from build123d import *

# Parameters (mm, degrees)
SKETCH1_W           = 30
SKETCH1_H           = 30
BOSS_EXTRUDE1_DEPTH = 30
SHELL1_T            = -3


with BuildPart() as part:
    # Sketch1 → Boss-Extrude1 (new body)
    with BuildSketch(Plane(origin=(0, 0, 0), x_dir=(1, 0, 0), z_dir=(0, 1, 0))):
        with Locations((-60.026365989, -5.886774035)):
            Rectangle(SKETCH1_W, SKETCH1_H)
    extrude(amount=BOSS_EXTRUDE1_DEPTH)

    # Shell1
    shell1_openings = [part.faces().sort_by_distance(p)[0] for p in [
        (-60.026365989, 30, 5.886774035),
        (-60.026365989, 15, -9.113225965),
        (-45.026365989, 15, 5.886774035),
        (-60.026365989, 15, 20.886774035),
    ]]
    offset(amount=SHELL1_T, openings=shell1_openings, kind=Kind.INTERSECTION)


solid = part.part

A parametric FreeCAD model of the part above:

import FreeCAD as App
import Part
import Sketcher
from FreeCAD import Vector


def faces_at(feature, points):
    """Names of the faces that lie closest to the given points."""
    faces = feature.Shape.Faces
    near = lambda p: min(range(len(faces)), key=lambda i: faces[i].distToShape(Part.Vertex(*p))[0])
    return sorted({f"Face{near(p) + 1}" for p in points})


def add_polygon(sketch, points):
    """Adds a closed chain of lines whose ends are joined by coincident constraints."""
    first, n = sketch.GeometryCount, len(points)
    for a, b in zip(points, points[1:] + points[:1]):
        sketch.addGeometry(Part.LineSegment(App.Vector(*a, 0), App.Vector(*b, 0)), False)
    for i in range(n):
        sketch.addConstraint(Sketcher.Constraint("Coincident", first + i, 2, first + (i + 1) % n, 1))

doc = App.newDocument("Part")
body = doc.addObject("PartDesign::Body", "Body")

# Sketch on XZ plane
sketch1 = body.newObject("Sketcher::SketchObject", "Sketch")
sketch1.AttachmentSupport = (doc.getObject("XZ_Plane"), [""])
sketch1.MapMode = "FlatFace"
add_polygon(sketch1, [(-75.026366, -9.113226), (-75.026366, 20.886774), (-45.026366, 20.886774), (-45.026366, -9.113226)])  # lines 0-3
sketch1.addConstraint([
    Sketcher.Constraint("Vertical", 0),
    Sketcher.Constraint("Horizontal", 1),
    Sketcher.Constraint("Vertical", 2),
    Sketcher.Constraint("Horizontal", 3),
    Sketcher.Constraint("Equal", 3, 0),
    Sketcher.Constraint("DistanceX", 1, 1, 1, 2, 30.0),
    Sketcher.Constraint("DistanceX", 0, 2, -1, 1, 75.026366),
    Sketcher.Constraint("DistanceY", -1, 1, 0, 2, 20.886774),
])
pad1 = body.newObject("PartDesign::Pad", "Pad")
pad1.Profile = sketch1
pad1.Length = 30
pad1.Reversed = True
doc.recompute()

thickness = body.newObject("PartDesign::Thickness", "Thickness")
thickness.Base = (pad1, faces_at(pad1, [
    (-60.026, 30, 5.887),
    (-60.026, 15, -9.113),
    (-45.026, 15, 5.887),
    (-60.026, 15, 20.887),
]))
thickness.Value = 3
thickness.Reversed = True
thickness.Join = "Intersection"

doc.recompute()
